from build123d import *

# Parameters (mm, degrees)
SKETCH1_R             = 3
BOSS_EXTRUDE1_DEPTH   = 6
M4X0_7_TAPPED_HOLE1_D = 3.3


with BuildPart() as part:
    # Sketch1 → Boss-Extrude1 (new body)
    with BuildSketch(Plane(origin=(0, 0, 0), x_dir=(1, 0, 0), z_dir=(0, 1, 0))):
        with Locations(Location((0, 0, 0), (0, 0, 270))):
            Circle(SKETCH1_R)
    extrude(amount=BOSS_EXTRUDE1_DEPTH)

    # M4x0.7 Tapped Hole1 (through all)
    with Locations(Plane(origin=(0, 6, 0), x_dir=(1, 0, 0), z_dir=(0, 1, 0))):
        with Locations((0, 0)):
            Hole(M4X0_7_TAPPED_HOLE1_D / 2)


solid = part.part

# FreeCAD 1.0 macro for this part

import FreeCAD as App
import Part
import Sketcher

doc = App.newDocument("Part")
body = doc.addObject("PartDesign::Body", "Body")

# Sketch on XZ plane
sketch1 = body.newObject("Sketcher::SketchObject", "Sketch")
sketch1.AttachmentSupport = (doc.getObject("XZ_Plane"), [""])
sketch1.MapMode = "FlatFace"
sketch1.addGeometry(Part.Circle(App.Vector(0, 0, 0), App.Vector(0, 0, 1), 3), False)
sketch1.addConstraint([
    Sketcher.Constraint("Coincident", 0, 3, -1, 1),
    Sketcher.Constraint("Diameter", 0, 6.0),
])
pad1 = body.newObject("PartDesign::Pad", "Pad")
pad1.Profile = sketch1
pad1.Length = 6
pad1.Reversed = True

# Sketch on XZ plane
sketch2 = body.newObject("Sketcher::SketchObject", "Sketch001")
sketch2.AttachmentSupport = (doc.getObject("XZ_Plane"), [""])
sketch2.MapMode = "FlatFace"
sketch2.AttachmentOffset = App.Placement(App.Vector(0, 0, -6), App.Rotation())
sketch2.addGeometry(Part.Circle(App.Vector(0, 0, 0), App.Vector(0, 0, 1), 1.6), False)
sketch2.addConstraint([
    Sketcher.Constraint("Coincident", 0, 3, -1, 1),
    Sketcher.Constraint("Diameter", 0, 3.3),
])
doc.recompute()
hole = body.newObject("PartDesign::Hole", "Hole")
hole.Profile = sketch2
hole.ThreadType = "None"
hole.Diameter = 3.3
hole.DepthType = "ThroughAll"
hole.Reversed = True

doc.recompute()
